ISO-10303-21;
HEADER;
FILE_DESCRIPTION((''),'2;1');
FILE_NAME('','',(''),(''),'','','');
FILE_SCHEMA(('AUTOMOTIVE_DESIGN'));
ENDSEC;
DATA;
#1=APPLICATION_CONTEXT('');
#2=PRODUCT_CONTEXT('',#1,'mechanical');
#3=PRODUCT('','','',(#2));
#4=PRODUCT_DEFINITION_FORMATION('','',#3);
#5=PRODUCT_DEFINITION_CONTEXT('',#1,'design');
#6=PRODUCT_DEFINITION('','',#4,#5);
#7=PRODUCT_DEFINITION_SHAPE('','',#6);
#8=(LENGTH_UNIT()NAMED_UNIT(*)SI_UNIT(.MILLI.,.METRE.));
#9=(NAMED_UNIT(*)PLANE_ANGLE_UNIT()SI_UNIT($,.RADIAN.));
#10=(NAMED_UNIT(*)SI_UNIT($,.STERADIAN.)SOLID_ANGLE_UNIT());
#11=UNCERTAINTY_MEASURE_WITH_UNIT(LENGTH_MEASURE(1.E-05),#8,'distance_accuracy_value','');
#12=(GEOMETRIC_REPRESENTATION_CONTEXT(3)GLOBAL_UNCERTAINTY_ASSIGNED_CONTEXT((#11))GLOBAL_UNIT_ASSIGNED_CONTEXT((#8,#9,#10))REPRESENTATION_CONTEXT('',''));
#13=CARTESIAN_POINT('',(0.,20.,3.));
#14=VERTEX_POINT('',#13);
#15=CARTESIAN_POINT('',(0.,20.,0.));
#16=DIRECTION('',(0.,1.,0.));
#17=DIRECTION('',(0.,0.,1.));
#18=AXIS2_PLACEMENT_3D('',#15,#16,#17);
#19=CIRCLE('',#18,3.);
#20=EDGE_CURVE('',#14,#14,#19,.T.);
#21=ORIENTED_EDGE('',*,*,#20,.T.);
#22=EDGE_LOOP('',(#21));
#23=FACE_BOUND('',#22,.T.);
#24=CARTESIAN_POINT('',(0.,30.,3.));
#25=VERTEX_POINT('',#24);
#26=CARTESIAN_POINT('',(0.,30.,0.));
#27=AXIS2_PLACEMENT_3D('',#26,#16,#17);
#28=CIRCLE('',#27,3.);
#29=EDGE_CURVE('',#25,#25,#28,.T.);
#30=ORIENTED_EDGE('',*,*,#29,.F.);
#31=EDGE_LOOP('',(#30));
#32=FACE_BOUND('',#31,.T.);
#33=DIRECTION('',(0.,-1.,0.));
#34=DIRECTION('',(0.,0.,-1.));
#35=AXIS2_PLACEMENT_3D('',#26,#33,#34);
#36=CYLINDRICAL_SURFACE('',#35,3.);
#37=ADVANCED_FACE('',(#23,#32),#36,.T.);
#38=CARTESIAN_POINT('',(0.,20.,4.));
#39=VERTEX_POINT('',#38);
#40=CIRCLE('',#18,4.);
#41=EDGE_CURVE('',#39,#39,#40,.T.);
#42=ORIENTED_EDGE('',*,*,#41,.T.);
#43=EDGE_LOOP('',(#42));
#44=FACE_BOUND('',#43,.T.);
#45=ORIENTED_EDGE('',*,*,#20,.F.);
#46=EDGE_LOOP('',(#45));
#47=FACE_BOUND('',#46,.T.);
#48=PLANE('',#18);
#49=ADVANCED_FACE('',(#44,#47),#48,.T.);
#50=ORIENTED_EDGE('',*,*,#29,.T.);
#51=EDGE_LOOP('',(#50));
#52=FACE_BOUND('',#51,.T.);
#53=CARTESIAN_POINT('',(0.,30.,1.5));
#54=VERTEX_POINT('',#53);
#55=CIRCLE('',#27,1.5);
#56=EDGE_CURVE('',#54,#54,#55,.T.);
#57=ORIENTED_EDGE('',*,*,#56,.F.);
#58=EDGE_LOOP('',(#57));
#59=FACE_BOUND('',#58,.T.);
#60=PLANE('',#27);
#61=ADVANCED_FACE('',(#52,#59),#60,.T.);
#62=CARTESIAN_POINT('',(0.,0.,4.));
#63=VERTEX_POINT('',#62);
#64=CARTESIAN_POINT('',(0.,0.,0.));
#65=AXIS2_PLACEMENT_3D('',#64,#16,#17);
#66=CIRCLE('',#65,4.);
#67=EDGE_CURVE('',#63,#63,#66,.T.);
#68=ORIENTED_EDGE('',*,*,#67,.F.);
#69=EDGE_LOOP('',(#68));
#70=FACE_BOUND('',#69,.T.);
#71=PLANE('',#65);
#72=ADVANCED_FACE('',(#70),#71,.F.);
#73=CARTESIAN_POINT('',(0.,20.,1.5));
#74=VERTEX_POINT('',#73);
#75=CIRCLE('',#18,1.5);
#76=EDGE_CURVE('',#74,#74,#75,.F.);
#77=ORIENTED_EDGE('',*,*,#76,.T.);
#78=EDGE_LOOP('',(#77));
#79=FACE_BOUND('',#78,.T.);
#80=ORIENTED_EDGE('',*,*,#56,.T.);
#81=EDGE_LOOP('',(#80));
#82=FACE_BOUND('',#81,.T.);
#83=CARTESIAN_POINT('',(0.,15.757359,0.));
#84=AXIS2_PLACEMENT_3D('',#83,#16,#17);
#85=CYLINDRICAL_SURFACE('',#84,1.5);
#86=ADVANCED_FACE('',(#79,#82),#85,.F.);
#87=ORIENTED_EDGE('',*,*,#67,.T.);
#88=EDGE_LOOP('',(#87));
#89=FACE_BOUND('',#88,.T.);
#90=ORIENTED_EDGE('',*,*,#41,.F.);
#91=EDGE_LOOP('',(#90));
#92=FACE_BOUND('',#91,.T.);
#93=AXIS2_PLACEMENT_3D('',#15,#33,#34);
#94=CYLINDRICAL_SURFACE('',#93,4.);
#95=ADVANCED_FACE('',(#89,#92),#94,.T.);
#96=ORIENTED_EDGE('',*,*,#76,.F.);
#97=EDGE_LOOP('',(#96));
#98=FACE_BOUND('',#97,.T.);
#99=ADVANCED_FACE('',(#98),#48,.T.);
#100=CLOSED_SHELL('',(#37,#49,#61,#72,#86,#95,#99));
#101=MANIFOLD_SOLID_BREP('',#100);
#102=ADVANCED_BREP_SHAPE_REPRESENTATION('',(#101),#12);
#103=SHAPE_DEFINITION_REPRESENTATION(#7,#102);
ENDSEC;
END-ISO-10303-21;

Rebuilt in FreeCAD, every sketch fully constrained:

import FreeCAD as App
import Part
import Sketcher
from FreeCAD import Vector

doc = App.newDocument("Part")
body = doc.addObject("PartDesign::Body", "Body")

sketch1 = body.newObject("Sketcher::SketchObject", "Sketch")
sketch1.AttachmentSupport = (doc.getObject("XZ_Plane"), [""])
sketch1.MapMode = "FlatFace"
sketch1.addGeometry(Part.Circle(Vector(0, 0, 0), Vector(0, 0, 1), 4), False)
sketch1.addConstraint([
    Sketcher.Constraint("Coincident", 0, 3, -1, 1),
    Sketcher.Constraint("Diameter", 0, 8.0),
])
pad1 = body.newObject("PartDesign::Pad", "Pad")
pad1.Profile = sketch1
pad1.Length = 20
pad1.Reversed = True

sketch2 = body.newObject("Sketcher::SketchObject", "Sketch001")
sketch2.AttachmentSupport = (doc.getObject("XZ_Plane"), [""])
sketch2.MapMode = "FlatFace"
sketch2.AttachmentOffset = App.Placement(Vector(0, 0, -20), App.Rotation())
sketch2.addGeometry(Part.Circle(Vector(0, 0, 0), Vector(0, 0, 1), 3), False)
sketch2.addConstraint([
    Sketcher.Constraint("Coincident", 0, 3, -1, 1),
    Sketcher.Constraint("Diameter", 0, 6.0),
])
pad2 = body.newObject("PartDesign::Pad", "Pad001")
pad2.Profile = sketch2
pad2.Length = 10
pad2.Reversed = True

sketch3 = body.newObject("Sketcher::SketchObject", "Sketch002")
sketch3.AttachmentSupport = (doc.getObject("XZ_Plane"), [""])
sketch3.MapMode = "FlatFace"
sketch3.AttachmentOffset = App.Placement(Vector(0, 0, -30), App.Rotation())
sketch3.addGeometry(Part.Circle(Vector(0, 0, 0), Vector(0, 0, 1), 1.5), False)
sketch3.addConstraint([
    Sketcher.Constraint("Coincident", 0, 3, -1, 1),
    Sketcher.Constraint("Diameter", 0, 3.0),
])
pocket1 = body.newObject("PartDesign::Pocket", "Pocket")
pocket1.Profile = sketch3
pocket1.Length = 10
pocket1.Reversed = True

doc.recompute()
